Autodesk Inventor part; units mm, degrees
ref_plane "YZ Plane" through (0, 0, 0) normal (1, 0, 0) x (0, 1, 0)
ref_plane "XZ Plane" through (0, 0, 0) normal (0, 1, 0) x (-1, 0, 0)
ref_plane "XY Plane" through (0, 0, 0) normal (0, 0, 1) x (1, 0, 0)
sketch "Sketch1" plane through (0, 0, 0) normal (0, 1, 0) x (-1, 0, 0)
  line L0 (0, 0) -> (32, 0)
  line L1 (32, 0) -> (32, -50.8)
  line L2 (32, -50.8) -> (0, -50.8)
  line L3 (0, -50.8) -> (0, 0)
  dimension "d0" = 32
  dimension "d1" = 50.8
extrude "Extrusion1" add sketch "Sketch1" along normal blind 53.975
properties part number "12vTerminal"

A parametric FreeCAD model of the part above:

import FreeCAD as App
import Part
import Sketcher
Q = App.Units.Quantity

doc = App.newDocument("Part")
body = doc.addObject("PartDesign::Body", "Body")

# Sketch on XZ plane
sketch1 = doc.addObject("Sketcher::SketchObject", "Sketch")
body.addObject(sketch1)
sketch1.AttachmentSupport = (doc.XZ_Plane, [""])
sketch1.MapMode = "FlatFace"
sketch1.addGeometry([
    Part.LineSegment(App.Vector(-32, 0, 0), App.Vector(0, 0, 0)),
    Part.LineSegment(App.Vector(0, 0, 0), App.Vector(0, -51, 0)),
    Part.LineSegment(App.Vector(0, -51, 0), App.Vector(-32, -51, 0)),
    Part.LineSegment(App.Vector(-32, -51, 0), App.Vector(-32, 0, 0)),
], False)
sketch1.addConstraint([
    Sketcher.Constraint("Coincident", 0, 2, 1, 1),
    Sketcher.Constraint("Coincident", 1, 2, 2, 1),
    Sketcher.Constraint("Coincident", 2, 2, 3, 1),
    Sketcher.Constraint("Coincident", 3, 2, 0, 1),
    Sketcher.Constraint("Horizontal", 0),
    Sketcher.Constraint("Vertical", 1),
    Sketcher.Constraint("Horizontal", 2),
    Sketcher.Constraint("Vertical", 3),
    Sketcher.Constraint("Coincident", 0, 2, -1, 1),
    Sketcher.Constraint("DistanceY", 1, 2, 1, 1, Q("2 in")),
    Sketcher.Constraint("DistanceX", 0, 1, 0, 2, Q("32 mm")),
])
pad1 = doc.addObject("PartDesign::Pad", "Pad")
body.addObject(pad1)
pad1.Profile = sketch1
pad1.Length = Q("2.125 in")
pad1.Reversed = True

doc.recompute()
